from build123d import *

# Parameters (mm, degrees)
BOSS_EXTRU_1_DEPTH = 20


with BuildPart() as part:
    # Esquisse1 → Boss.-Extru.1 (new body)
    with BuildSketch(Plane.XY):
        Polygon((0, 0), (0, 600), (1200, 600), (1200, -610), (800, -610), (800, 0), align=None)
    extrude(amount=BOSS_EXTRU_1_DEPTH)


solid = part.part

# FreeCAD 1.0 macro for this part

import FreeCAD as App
import Part
import Sketcher


def add_polygon(sketch, points):
    """Adds a closed chain of lines whose ends are joined by coincident constraints."""
    first, n = sketch.GeometryCount, len(points)
    for a, b in zip(points, points[1:] + points[:1]):
        sketch.addGeometry(Part.LineSegment(App.Vector(*a, 0), App.Vector(*b, 0)), False)
    for i in range(n):
        sketch.addConstraint(Sketcher.Constraint("Coincident", first + i, 2, first + (i + 1) % n, 1))

doc = App.newDocument("Part")
params = doc.addObject("Spreadsheet::Sheet", "Params")
for row, (alias, value) in enumerate([
    ("sketch1_width", "800 mm"),
    ("sketch1_width2", "400 mm"),
    ("sketch1_height", "600 mm"),
    ("sketch1_height2", "610 mm"),
    ("pad1_length", "20 mm"),
], start=1):
    params.set(f"A{row}", alias)
    params.set(f"B{row}", "=" + value)
    params.setAlias(f"B{row}", alias)

body = doc.addObject("PartDesign::Body", "Body")

# Sketch on XY plane
sketch1 = body.newObject("Sketcher::SketchObject", "Sketch")
sketch1.AttachmentSupport = (doc.getObject("XY_Plane"), [""])
sketch1.MapMode = "FlatFace"
add_polygon(sketch1, [(0, 600), (0, 0), (800, 0), (800, -610), (1200, -610), (1200, 600)])  # lines 0-5
sketch1.addConstraint(Sketcher.Constraint("Vertical", 0))
sketch1.addConstraint(Sketcher.Constraint("Horizontal", 1))
sketch1.addConstraint(Sketcher.Constraint("Vertical", 2))
sketch1.addConstraint(Sketcher.Constraint("Horizontal", 3))
sketch1.addConstraint(Sketcher.Constraint("Vertical", 4))
sketch1.addConstraint(Sketcher.Constraint("Horizontal", 5))
sketch1.addConstraint(Sketcher.Constraint("Coincident", 0, 2, -1, 1))
sketch1.addConstraint(Sketcher.Constraint("DistanceX", 1, 1, 1, 2, 800.0))
sketch1.addConstraint(Sketcher.Constraint("DistanceX", 3, 1, 3, 2, 400.0))
sketch1.addConstraint(Sketcher.Constraint("DistanceY", 0, 2, 0, 1, 600.0))
sketch1.addConstraint(Sketcher.Constraint("DistanceY", 2, 2, 2, 1, 610.0))
sketch1.setExpression("Constraints[13]", "Params.sketch1_width")
sketch1.setExpression("Constraints[14]", "Params.sketch1_width2")
sketch1.setExpression("Constraints[15]", "Params.sketch1_height")
sketch1.setExpression("Constraints[16]", "Params.sketch1_height2")
pad1 = body.newObject("PartDesign::Pad", "Pad")
pad1.Profile = sketch1
pad1.setExpression("Length", "Params.pad1_length")

doc.recompute()
